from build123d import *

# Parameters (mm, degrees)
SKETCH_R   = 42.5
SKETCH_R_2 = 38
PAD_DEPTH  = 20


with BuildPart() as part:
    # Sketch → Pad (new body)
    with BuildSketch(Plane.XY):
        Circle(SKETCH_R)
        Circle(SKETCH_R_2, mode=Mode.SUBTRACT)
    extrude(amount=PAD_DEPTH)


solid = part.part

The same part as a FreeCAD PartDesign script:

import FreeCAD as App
import Part
import Sketcher
from FreeCAD import Vector
Q = App.Units.Quantity

doc = App.newDocument("Part")
body = doc.addObject("PartDesign::Body", "Body")

# Sketch on XY plane
sketch1 = doc.addObject("Sketcher::SketchObject", "Sketch")
body.addObject(sketch1)
sketch1.AttachmentSupport = (doc.XY_Plane, [""])
sketch1.MapMode = "FlatFace"
sketch1.addGeometry([
    Part.Circle(Vector(0, 0, 0), Vector(0, 0, 1), 42.5),
    Part.Circle(Vector(0, 0, 0), Vector(0, 0, 1), 38),
], False)
sketch1.addConstraint([
    Sketcher.Constraint("Coincident", 0, 3, -1, 1),
    Sketcher.Constraint("Coincident", 1, 3, -1, 1),
    Sketcher.Constraint("Diameter", 0, Q("85 mm")),
    Sketcher.Constraint("Diameter", 1, Q("76 mm")),
])
pad1 = doc.addObject("PartDesign::Pad", "Pad")
body.addObject(pad1)
pad1.Profile = sketch1
pad1.Length = 20

doc.recompute()
